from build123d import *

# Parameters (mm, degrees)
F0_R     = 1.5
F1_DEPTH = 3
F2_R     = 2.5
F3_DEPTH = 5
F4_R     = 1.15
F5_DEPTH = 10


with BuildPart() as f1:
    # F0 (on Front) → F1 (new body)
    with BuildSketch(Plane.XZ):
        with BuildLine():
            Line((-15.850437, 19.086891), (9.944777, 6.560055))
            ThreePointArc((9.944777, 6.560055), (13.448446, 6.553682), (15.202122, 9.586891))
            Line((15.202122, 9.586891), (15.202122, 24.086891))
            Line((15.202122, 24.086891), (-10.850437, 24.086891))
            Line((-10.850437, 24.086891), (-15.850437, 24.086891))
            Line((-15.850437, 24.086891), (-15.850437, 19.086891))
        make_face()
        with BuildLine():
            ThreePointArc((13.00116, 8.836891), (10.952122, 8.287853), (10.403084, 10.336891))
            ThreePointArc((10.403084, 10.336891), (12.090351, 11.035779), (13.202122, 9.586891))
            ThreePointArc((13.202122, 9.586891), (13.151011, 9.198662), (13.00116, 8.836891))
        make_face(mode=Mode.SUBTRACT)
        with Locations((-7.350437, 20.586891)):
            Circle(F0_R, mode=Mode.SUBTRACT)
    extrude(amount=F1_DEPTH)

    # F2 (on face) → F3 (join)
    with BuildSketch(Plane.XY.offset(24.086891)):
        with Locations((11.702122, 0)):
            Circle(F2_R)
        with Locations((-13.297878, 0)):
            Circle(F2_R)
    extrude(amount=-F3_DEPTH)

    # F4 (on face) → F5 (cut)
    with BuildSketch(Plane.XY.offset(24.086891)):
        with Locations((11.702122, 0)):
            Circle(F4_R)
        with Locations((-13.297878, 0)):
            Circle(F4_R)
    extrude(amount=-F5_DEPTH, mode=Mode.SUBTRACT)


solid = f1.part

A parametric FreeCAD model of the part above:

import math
import FreeCAD as App
import Part
import Sketcher

V = App.Vector

doc = App.newDocument("Part")
params = doc.addObject("Spreadsheet::Sheet", "Params")
for row, (alias, value) in enumerate([
    ("sketch1_diameter", "3 mm"),
    ("sketch1_radius", "3.499999 mm"),
    ("sketch1_height", "5 mm"),
    ("sketch1_height2", "14.5 mm"),
    ("pad1_length", "3 mm"),
    ("sketch2_diameter", "5 mm"),
    ("pad2_length", "5 mm"),
    ("sketch3_diameter", "2.3 mm"),
    ("pocket1_length", "10 mm"),
], start=1):
    params.set(f"A{row}", alias)
    params.set(f"B{row}", "=" + value)
    params.setAlias(f"B{row}", alias)

body = doc.addObject("PartDesign::Body", "Body")

# Sketch on XZ plane
sketch1 = body.newObject("Sketcher::SketchObject", "Sketch")
sketch1.AttachmentSupport = (doc.getObject("XZ_Plane"), [""])
sketch1.MapMode = "FlatFace"
sketch1.addGeometry([
    Part.LineSegment(V(-15.850437, 19.086891, 0), V(9.944777, 6.560055, 0)),  # 0
    Part.ArcOfCircle(Part.Circle(V(11.702123, 9.58689, 0), V(0, 0, 1), 3.499999), math.radians(-120.138965), math.radians(0.000021)),  # 1
    Part.LineSegment(V(15.202122, 9.586891, 0), V(15.202122, 24.086891, 0)),  # 2
    Part.LineSegment(V(15.202122, 24.086891, 0), V(-15.850437, 24.086891, 0)),  # 3
    Part.LineSegment(V(-15.850437, 24.086891, 0), V(-15.850437, 19.086891, 0)),  # 4
    Part.ArcOfCircle(Part.Circle(V(11.702134, 9.586888, 0), V(0, 0, 1), 1.499988), math.radians(-30.000127), math.radians(0.000112)),  # 5
    Part.ArcOfCircle(Part.Circle(V(11.702122, 9.586891, 0), V(0, 0, 1), 1.5), math.radians(149.999998), math.radians(329.999998)),  # 6
    Part.ArcOfCircle(Part.Circle(V(11.702122, 9.58689, 0), V(0, 0, 1), 1.5), math.radians(0.000028), math.radians(149.999971)),  # 7
    Part.Circle(V(-7.350437, 20.586891, 0), V(0, 0, 1), 1.5),  # 8
], False)
sketch1.addConstraint([
    Sketcher.Constraint("Coincident", 0, 2, 1, 1),
    Sketcher.Constraint("Tangent", 1, 2, 2, 1),
    Sketcher.Constraint("Coincident", 2, 2, 3, 1),
    Sketcher.Constraint("Coincident", 3, 2, 4, 1),
    Sketcher.Constraint("Coincident", 4, 2, 0, 1),
    Sketcher.Constraint("Coincident", 5, 1, 6, 2),
    Sketcher.Constraint("Tangent", 6, 1, 7, 2),
    Sketcher.Constraint("Tangent", 7, 1, 5, 2),
    Sketcher.Constraint("Vertical", 2),
    Sketcher.Constraint("Horizontal", 3),
    Sketcher.Constraint("Vertical", 4),
    Sketcher.Constraint("Coincident", 6, 3, 1, 3),
    Sketcher.Constraint("Equal", 6, 7),
    Sketcher.Constraint("Equal", 7, 8),
    Sketcher.Constraint("Horizontal", 1, 2, 7, 1),
    Sketcher.Constraint("Diameter", 8, 3.0),
    Sketcher.Constraint("Radius", 1, 3.499999),
    Sketcher.Constraint("DistanceY", 4, 2, 4, 1, 5.0),
    Sketcher.Constraint("DistanceY", 2, 1, 2, 2, 14.5),
    Sketcher.Constraint("DistanceY", 6, 3, 8, 3, 11.0),
    Sketcher.Constraint("DistanceX", 3, 2, 8, 3, 8.5),
    Sketcher.Constraint("DistanceY", 5, 1, 6, 1, 1.5),
    Sketcher.Constraint("DistanceY", 5, 1, 1, 3, 0.749999),
    Sketcher.Constraint("DistanceX", 3, 2, 3, 1, 31.052559),
    Sketcher.Constraint("Distance", 0, 28.67603),
    Sketcher.Constraint("DistanceY", -1, 1, 1, 3, 9.58689),
    Sketcher.Constraint("DistanceX", -1, 1, 6, 3, 11.702122),
])
sketch1.setExpression("Constraints[15]", "Params.sketch1_diameter")
sketch1.setExpression("Constraints[16]", "Params.sketch1_radius")
sketch1.setExpression("Constraints[17]", "Params.sketch1_height")
sketch1.setExpression("Constraints[18]", "Params.sketch1_height2")
pad1 = body.newObject("PartDesign::Pad", "Pad")
pad1.Profile = sketch1
pad1.setExpression("Length", "Params.pad1_length")

# Sketch on XY plane
sketch2 = body.newObject("Sketcher::SketchObject", "Sketch001")
sketch2.AttachmentSupport = (doc.getObject("XY_Plane"), [""])
sketch2.MapMode = "FlatFace"
sketch2.AttachmentOffset = App.Placement(V(0, 0, 24.086891), App.Rotation())
sketch2.addGeometry([
    Part.Circle(V(11.702122, 0, 0), V(0, 0, 1), 2.5),
    Part.Circle(V(-13.297878, 0, 0), V(0, 0, 1), 2.5),
], False)
sketch2.addConstraint([
    Sketcher.Constraint("Equal", 0, 1),
    Sketcher.Constraint("PointOnObject", 0, 3, -1),
    Sketcher.Constraint("PointOnObject", 1, 3, -1),
    Sketcher.Constraint("Diameter", 0, 5.0),
    Sketcher.Constraint("DistanceX", 1, 3, 0, 3, 25.0),
    Sketcher.Constraint("DistanceX", -1, 1, 0, 3, 11.702122),
])
sketch2.setExpression("Constraints[3]", "Params.sketch2_diameter")
pad2 = body.newObject("PartDesign::Pad", "Pad001")
pad2.Profile = sketch2
pad2.setExpression("Length", "Params.pad2_length")
pad2.Reversed = True

# Sketch on XY plane
sketch3 = body.newObject("Sketcher::SketchObject", "Sketch002")
sketch3.AttachmentSupport = (doc.getObject("XY_Plane"), [""])
sketch3.MapMode = "FlatFace"
sketch3.AttachmentOffset = App.Placement(V(0, 0, 24.086891), App.Rotation())
sketch3.addGeometry([
    Part.Circle(V(11.702122, 0, 0), V(0, 0, 1), 1.15),
    Part.Circle(V(-13.297878, 0, 0), V(0, 0, 1), 1.15),
], False)
sketch3.addConstraint([
    Sketcher.Constraint("Equal", 0, 1),
    Sketcher.Constraint("PointOnObject", 0, 3, -1),
    Sketcher.Constraint("PointOnObject", 1, 3, -1),
    Sketcher.Constraint("Diameter", 0, 2.3),
    Sketcher.Constraint("DistanceX", 1, 3, 0, 3, 25.0),
    Sketcher.Constraint("DistanceX", -1, 1, 0, 3, 11.702122),
])
sketch3.setExpression("Constraints[3]", "Params.sketch3_diameter")
pocket1 = body.newObject("PartDesign::Pocket", "Pocket")
pocket1.Profile = sketch3
pocket1.setExpression("Length", "Params.pocket1_length")

doc.recompute()
